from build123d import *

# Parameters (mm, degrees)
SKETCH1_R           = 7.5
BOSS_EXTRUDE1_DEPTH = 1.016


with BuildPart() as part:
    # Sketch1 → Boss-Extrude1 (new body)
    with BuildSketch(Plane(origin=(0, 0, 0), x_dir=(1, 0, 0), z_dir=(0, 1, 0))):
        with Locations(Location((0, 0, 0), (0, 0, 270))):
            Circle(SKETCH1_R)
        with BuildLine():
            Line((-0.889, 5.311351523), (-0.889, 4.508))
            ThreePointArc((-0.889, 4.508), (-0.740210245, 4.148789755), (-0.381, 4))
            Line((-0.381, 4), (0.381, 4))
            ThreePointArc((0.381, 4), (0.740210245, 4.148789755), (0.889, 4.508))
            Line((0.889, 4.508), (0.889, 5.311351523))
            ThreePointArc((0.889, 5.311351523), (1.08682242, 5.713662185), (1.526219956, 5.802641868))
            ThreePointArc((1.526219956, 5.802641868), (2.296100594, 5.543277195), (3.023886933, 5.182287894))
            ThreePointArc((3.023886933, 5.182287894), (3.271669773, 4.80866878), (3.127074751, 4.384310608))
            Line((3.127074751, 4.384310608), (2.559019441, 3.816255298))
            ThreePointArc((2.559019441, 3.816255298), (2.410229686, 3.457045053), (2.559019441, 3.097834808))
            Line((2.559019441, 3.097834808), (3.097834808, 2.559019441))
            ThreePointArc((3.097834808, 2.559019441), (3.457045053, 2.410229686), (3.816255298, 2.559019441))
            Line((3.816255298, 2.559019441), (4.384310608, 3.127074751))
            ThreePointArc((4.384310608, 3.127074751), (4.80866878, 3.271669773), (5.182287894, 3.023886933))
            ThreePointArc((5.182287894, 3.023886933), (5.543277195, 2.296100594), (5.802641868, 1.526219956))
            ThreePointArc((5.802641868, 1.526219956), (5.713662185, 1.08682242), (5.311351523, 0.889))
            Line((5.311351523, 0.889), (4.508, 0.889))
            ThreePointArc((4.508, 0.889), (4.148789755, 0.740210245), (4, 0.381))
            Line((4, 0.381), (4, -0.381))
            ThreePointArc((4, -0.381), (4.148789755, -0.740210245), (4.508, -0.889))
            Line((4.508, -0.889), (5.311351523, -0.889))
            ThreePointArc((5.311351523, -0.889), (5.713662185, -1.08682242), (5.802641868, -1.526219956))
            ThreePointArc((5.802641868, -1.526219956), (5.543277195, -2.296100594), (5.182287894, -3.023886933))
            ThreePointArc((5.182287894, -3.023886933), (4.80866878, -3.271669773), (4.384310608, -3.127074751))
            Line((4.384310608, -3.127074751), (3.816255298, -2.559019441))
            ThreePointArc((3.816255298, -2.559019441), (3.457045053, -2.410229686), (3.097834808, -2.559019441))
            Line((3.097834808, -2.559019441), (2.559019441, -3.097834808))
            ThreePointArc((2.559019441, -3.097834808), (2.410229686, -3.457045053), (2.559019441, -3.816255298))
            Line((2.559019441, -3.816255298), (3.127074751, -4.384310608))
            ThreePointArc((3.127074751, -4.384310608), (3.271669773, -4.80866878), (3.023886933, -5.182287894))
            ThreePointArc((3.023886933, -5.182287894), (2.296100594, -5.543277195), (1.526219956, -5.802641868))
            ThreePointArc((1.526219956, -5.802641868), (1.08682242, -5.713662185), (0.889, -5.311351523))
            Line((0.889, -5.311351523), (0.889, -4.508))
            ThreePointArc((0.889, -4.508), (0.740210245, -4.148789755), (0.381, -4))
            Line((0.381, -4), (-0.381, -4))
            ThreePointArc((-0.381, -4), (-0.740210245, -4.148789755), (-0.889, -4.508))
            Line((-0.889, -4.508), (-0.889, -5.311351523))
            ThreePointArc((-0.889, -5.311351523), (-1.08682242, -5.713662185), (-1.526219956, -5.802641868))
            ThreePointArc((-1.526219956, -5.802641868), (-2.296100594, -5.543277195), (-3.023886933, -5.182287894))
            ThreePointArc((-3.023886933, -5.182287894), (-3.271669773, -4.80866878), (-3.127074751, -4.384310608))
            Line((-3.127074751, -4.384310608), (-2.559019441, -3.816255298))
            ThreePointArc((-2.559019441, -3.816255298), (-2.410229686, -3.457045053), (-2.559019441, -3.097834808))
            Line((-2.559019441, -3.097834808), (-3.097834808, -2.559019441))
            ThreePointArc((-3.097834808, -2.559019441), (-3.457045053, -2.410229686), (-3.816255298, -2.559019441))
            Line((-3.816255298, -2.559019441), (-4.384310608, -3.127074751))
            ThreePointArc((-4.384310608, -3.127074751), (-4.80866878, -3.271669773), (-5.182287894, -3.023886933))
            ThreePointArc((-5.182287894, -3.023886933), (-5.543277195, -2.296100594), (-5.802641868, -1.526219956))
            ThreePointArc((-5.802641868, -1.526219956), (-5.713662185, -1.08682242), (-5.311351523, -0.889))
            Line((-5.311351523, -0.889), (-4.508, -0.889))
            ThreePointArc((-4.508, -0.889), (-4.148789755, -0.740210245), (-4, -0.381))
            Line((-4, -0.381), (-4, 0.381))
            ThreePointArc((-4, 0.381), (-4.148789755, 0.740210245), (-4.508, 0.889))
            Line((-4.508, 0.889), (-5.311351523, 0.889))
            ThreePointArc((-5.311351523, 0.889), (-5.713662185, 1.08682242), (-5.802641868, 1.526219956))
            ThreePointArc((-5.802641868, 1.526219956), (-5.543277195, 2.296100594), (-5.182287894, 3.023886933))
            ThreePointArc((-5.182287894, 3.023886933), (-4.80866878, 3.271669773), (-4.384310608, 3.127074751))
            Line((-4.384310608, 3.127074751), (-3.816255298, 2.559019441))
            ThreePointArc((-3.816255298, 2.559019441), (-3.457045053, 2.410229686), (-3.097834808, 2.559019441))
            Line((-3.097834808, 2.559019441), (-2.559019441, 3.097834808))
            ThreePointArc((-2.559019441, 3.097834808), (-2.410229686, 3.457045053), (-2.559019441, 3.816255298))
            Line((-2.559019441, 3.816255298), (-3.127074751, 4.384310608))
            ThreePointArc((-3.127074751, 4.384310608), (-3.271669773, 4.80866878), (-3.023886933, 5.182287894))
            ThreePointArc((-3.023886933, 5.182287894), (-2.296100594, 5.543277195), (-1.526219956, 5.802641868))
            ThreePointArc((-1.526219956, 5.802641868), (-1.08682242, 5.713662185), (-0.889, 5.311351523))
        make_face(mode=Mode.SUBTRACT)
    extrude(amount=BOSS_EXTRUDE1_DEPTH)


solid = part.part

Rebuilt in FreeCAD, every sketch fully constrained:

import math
import FreeCAD as App
import Part
import Sketcher

V = App.Vector

doc = App.newDocument("Part")
body = doc.addObject("PartDesign::Body", "Body")

sketch1 = body.newObject("Sketcher::SketchObject", "Sketch")
sketch1.AttachmentSupport = (doc.getObject("XZ_Plane"), [""])
sketch1.MapMode = "FlatFace"
sketch1.addGeometry(Part.Circle(V(0, 0, 0), V(0, 0, 1), 7.5), False)
sketch1.addGeometry(Part.ArcOfCircle(Part.Circle(V(-1.4, -5.3, 0), V(0, 0, 1), 0.5), math.radians(-105), math.radians(0)), False)
sketch1.addGeometry(Part.LineSegment(V(-0.9, -5.3, 0), V(-0.9, -4.5, 0)), False)
sketch1.addGeometry(Part.ArcOfCircle(Part.Circle(V(-0.4, -4.5, 0), V(0, 0, 1), 0.5), math.radians(90), math.radians(180)), False)
sketch1.addGeometry(Part.LineSegment(V(-0.4, -4, 0), V(0.4, -4, 0)), False)
sketch1.addGeometry(Part.ArcOfCircle(Part.Circle(V(0.4, -4.5, 0), V(0, 0, 1), 0.5), math.radians(0), math.radians(90)), False)
sketch1.addGeometry(Part.LineSegment(V(0.9, -4.5, 0), V(0.9, -5.3, 0)), False)
sketch1.addGeometry(Part.ArcOfCircle(Part.Circle(V(1.4, -5.3, 0), V(0, 0, 1), 0.5), math.radians(180), math.radians(285)), False)
sketch1.addGeometry(Part.ArcOfCircle(Part.Circle(V(0, 0, 0), V(0, 0, 1), 6), math.radians(-75.26), math.radians(-59.74)), False)
sketch1.addGeometry(Part.ArcOfCircle(Part.Circle(V(2.8, -4.7, 0), V(0, 0, 1), 0.5), math.radians(-60), math.radians(45)), False)
sketch1.addGeometry(Part.LineSegment(V(3.1, -4.4, 0), V(2.6, -3.8, 0)), False)
sketch1.addGeometry(Part.ArcOfCircle(Part.Circle(V(2.9, -3.5, 0), V(0, 0, 1), 0.5), math.radians(135), math.radians(225)), False)
sketch1.addGeometry(Part.LineSegment(V(2.6, -3.1, 0), V(3.1, -2.6, 0)), False)
sketch1.addGeometry(Part.ArcOfCircle(Part.Circle(V(3.5, -2.9, 0), V(0, 0, 1), 0.5), math.radians(45), math.radians(135)), False)
sketch1.addGeometry(Part.LineSegment(V(3.8, -2.6, 0), V(4.4, -3.1, 0)), False)
sketch1.addGeometry(Part.ArcOfCircle(Part.Circle(V(4.7, -2.8, 0), V(0, 0, 1), 0.5), math.radians(-135), math.radians(-30)), False)
sketch1.addGeometry(Part.ArcOfCircle(Part.Circle(V(0, 0, 0), V(0, 0, 1), 6), math.radians(-30.26), math.radians(-14.74)), False)
sketch1.addGeometry(Part.ArcOfCircle(Part.Circle(V(5.3, -1.4, 0), V(0, 0, 1), 0.5), math.radians(-15), math.radians(90)), False)
sketch1.addGeometry(Part.LineSegment(V(5.3, -0.9, 0), V(4.5, -0.9, 0)), False)
sketch1.addGeometry(Part.ArcOfCircle(Part.Circle(V(4.5, -0.4, 0), V(0, 0, 1), 0.5), math.radians(180), math.radians(270)), False)
sketch1.addGeometry(Part.LineSegment(V(4, -0.4, 0), V(4, 0.4, 0)), False)
sketch1.addGeometry(Part.ArcOfCircle(Part.Circle(V(4.5, 0.4, 0), V(0, 0, 1), 0.5), math.radians(90), math.radians(180)), False)
sketch1.addGeometry(Part.LineSegment(V(4.5, 0.9, 0), V(5.3, 0.9, 0)), False)
sketch1.addGeometry(Part.ArcOfCircle(Part.Circle(V(5.3, 1.4, 0), V(0, 0, 1), 0.5), math.radians(-90), math.radians(15)), False)
sketch1.addGeometry(Part.ArcOfCircle(Part.Circle(V(0, 0, 0), V(0, 0, 1), 6), math.radians(14.74), math.radians(30.26)), False)
sketch1.addGeometry(Part.ArcOfCircle(Part.Circle(V(4.7, 2.8, 0), V(0, 0, 1), 0.5), math.radians(30), math.radians(135)), False)
sketch1.addGeometry(Part.LineSegment(V(4.4, 3.1, 0), V(3.8, 2.6, 0)), False)
sketch1.addGeometry(Part.ArcOfCircle(Part.Circle(V(3.5, 2.9, 0), V(0, 0, 1), 0.5), math.radians(-135), math.radians(-45)), False)
sketch1.addGeometry(Part.LineSegment(V(3.1, 2.6, 0), V(2.6, 3.1, 0)), False)
sketch1.addGeometry(Part.ArcOfCircle(Part.Circle(V(2.9, 3.5, 0), V(0, 0, 1), 0.5), math.radians(135), math.radians(225)), False)
sketch1.addGeometry(Part.LineSegment(V(2.6, 3.8, 0), V(3.1, 4.4, 0)), False)
sketch1.addGeometry(Part.ArcOfCircle(Part.Circle(V(2.8, 4.7, 0), V(0, 0, 1), 0.5), math.radians(-45), math.radians(60)), False)
sketch1.addGeometry(Part.ArcOfCircle(Part.Circle(V(0, 0, 0), V(0, 0, 1), 6), math.radians(59.74), math.radians(75.26)), False)
sketch1.addGeometry(Part.ArcOfCircle(Part.Circle(V(1.4, 5.3, 0), V(0, 0, 1), 0.5), math.radians(75), math.radians(180)), False)
sketch1.addGeometry(Part.LineSegment(V(0.9, 5.3, 0), V(0.9, 4.5, 0)), False)
sketch1.addGeometry(Part.ArcOfCircle(Part.Circle(V(0.4, 4.5, 0), V(0, 0, 1), 0.5), math.radians(-90), math.radians(0)), False)
sketch1.addGeometry(Part.LineSegment(V(0.4, 4, 0), V(-0.4, 4, 0)), False)
sketch1.addGeometry(Part.ArcOfCircle(Part.Circle(V(-0.4, 4.5, 0), V(0, 0, 1), 0.5), math.radians(180), math.radians(270)), False)
sketch1.addGeometry(Part.LineSegment(V(-0.9, 4.5, 0), V(-0.9, 5.3, 0)), False)
sketch1.addGeometry(Part.ArcOfCircle(Part.Circle(V(-1.4, 5.3, 0), V(0, 0, 1), 0.5), math.radians(0), math.radians(105)), False)
sketch1.addGeometry(Part.ArcOfCircle(Part.Circle(V(0, 0, 0), V(0, 0, 1), 6), math.radians(104.74), math.radians(120.26)), False)
sketch1.addGeometry(Part.ArcOfCircle(Part.Circle(V(-2.8, 4.7, 0), V(0, 0, 1), 0.5), math.radians(120), math.radians(225)), False)
sketch1.addGeometry(Part.LineSegment(V(-3.1, 4.4, 0), V(-2.6, 3.8, 0)), False)
sketch1.addGeometry(Part.ArcOfCircle(Part.Circle(V(-2.9, 3.5, 0), V(0, 0, 1), 0.5), math.radians(-45), math.radians(45)), False)
sketch1.addGeometry(Part.LineSegment(V(-2.6, 3.1, 0), V(-3.1, 2.6, 0)), False)
sketch1.addGeometry(Part.ArcOfCircle(Part.Circle(V(-3.5, 2.9, 0), V(0, 0, 1), 0.5), math.radians(-135), math.radians(-45)), False)
sketch1.addGeometry(Part.LineSegment(V(-3.8, 2.6, 0), V(-4.4, 3.1, 0)), False)
sketch1.addGeometry(Part.ArcOfCircle(Part.Circle(V(-4.7, 2.8, 0), V(0, 0, 1), 0.5), math.radians(45), math.radians(150)), False)
sketch1.addGeometry(Part.ArcOfCircle(Part.Circle(V(0, 0, 0), V(0, 0, 1), 6), math.radians(149.74), math.radians(165.26)), False)
sketch1.addGeometry(Part.ArcOfCircle(Part.Circle(V(-5.3, 1.4, 0), V(0, 0, 1), 0.5), math.radians(165), math.radians(270)), False)
sketch1.addGeometry(Part.LineSegment(V(-5.3, 0.9, 0), V(-4.5, 0.9, 0)), False)
sketch1.addGeometry(Part.ArcOfCircle(Part.Circle(V(-4.5, 0.4, 0), V(0, 0, 1), 0.5), math.radians(0), math.radians(90)), False)
sketch1.addGeometry(Part.LineSegment(V(-4, 0.4, 0), V(-4, -0.4, 0)), False)
sketch1.addGeometry(Part.ArcOfCircle(Part.Circle(V(-4.5, -0.4, 0), V(0, 0, 1), 0.5), math.radians(-90), math.radians(0)), False)
sketch1.addGeometry(Part.LineSegment(V(-4.5, -0.9, 0), V(-5.3, -0.9, 0)), False)
sketch1.addGeometry(Part.ArcOfCircle(Part.Circle(V(-5.3, -1.4, 0), V(0, 0, 1), 0.5), math.radians(90), math.radians(195)), False)
sketch1.addGeometry(Part.ArcOfCircle(Part.Circle(V(0, 0, 0), V(0, 0, 1), 6), math.radians(-165.26), math.radians(-149.74)), False)
sketch1.addGeometry(Part.ArcOfCircle(Part.Circle(V(-4.7, -2.8, 0), V(0, 0, 1), 0.5), math.radians(-150), math.radians(-45)), False)
sketch1.addGeometry(Part.LineSegment(V(-4.4, -3.1, 0), V(-3.8, -2.6, 0)), False)
sketch1.addGeometry(Part.ArcOfCircle(Part.Circle(V(-3.5, -2.9, 0), V(0, 0, 1), 0.5), math.radians(45), math.radians(135)), False)
sketch1.addGeometry(Part.LineSegment(V(-3.1, -2.6, 0), V(-2.6, -3.1, 0)), False)
sketch1.addGeometry(Part.ArcOfCircle(Part.Circle(V(-2.9, -3.5, 0), V(0, 0, 1), 0.5), math.radians(-45), math.radians(45)), False)
sketch1.addGeometry(Part.LineSegment(V(-2.6, -3.8, 0), V(-3.1, -4.4, 0)), False)
sketch1.addGeometry(Part.ArcOfCircle(Part.Circle(V(-2.8, -4.7, 0), V(0, 0, 1), 0.5), math.radians(135), math.radians(240)), False)
sketch1.addGeometry(Part.ArcOfCircle(Part.Circle(V(0, 0, 0), V(0, 0, 1), 6), math.radians(-120.26), math.radians(-104.74)), False)
sketch1.addConstraint(Sketcher.Constraint("Tangent", 1, 2, 2, 1))
sketch1.addConstraint(Sketcher.Constraint("Tangent", 2, 2, 3, 2))
sketch1.addConstraint(Sketcher.Constraint("Tangent", 3, 1, 4, 1))
sketch1.addConstraint(Sketcher.Constraint("Tangent", 4, 2, 5, 2))
sketch1.addConstraint(Sketcher.Constraint("Tangent", 5, 1, 6, 1))
sketch1.addConstraint(Sketcher.Constraint("Tangent", 6, 2, 7, 1))
sketch1.addConstraint(Sketcher.Constraint("Tangent", 7, 2, 8, 1))
sketch1.addConstraint(Sketcher.Constraint("Tangent", 8, 2, 9, 1))
sketch1.addConstraint(Sketcher.Constraint("Tangent", 9, 2, 10, 1))
sketch1.addConstraint(Sketcher.Constraint("Tangent", 10, 2, 11, 2))
sketch1.addConstraint(Sketcher.Constraint("Tangent", 11, 1, 12, 1))
sketch1.addConstraint(Sketcher.Constraint("Tangent", 12, 2, 13, 2))
sketch1.addConstraint(Sketcher.Constraint("Tangent", 13, 1, 14, 1))
sketch1.addConstraint(Sketcher.Constraint("Tangent", 14, 2, 15, 1))
sketch1.addConstraint(Sketcher.Constraint("Tangent", 15, 2, 16, 1))
sketch1.addConstraint(Sketcher.Constraint("Tangent", 16, 2, 17, 1))
sketch1.addConstraint(Sketcher.Constraint("Tangent", 17, 2, 18, 1))
sketch1.addConstraint(Sketcher.Constraint("Tangent", 18, 2, 19, 2))
sketch1.addConstraint(Sketcher.Constraint("Tangent", 19, 1, 20, 1))
sketch1.addConstraint(Sketcher.Constraint("Tangent", 20, 2, 21, 2))
sketch1.addConstraint(Sketcher.Constraint("Tangent", 21, 1, 22, 1))
sketch1.addConstraint(Sketcher.Constraint("Tangent", 22, 2, 23, 1))
sketch1.addConstraint(Sketcher.Constraint("Tangent", 23, 2, 24, 1))
sketch1.addConstraint(Sketcher.Constraint("Tangent", 24, 2, 25, 1))
sketch1.addConstraint(Sketcher.Constraint("Tangent", 25, 2, 26, 1))
sketch1.addConstraint(Sketcher.Constraint("Tangent", 26, 2, 27, 2))
sketch1.addConstraint(Sketcher.Constraint("Tangent", 27, 1, 28, 1))
sketch1.addConstraint(Sketcher.Constraint("Tangent", 28, 2, 29, 2))
sketch1.addConstraint(Sketcher.Constraint("Tangent", 29, 1, 30, 1))
sketch1.addConstraint(Sketcher.Constraint("Tangent", 30, 2, 31, 1))
sketch1.addConstraint(Sketcher.Constraint("Tangent", 31, 2, 32, 1))
sketch1.addConstraint(Sketcher.Constraint("Tangent", 32, 2, 33, 1))
sketch1.addConstraint(Sketcher.Constraint("Tangent", 33, 2, 34, 1))
sketch1.addConstraint(Sketcher.Constraint("Tangent", 34, 2, 35, 2))
sketch1.addConstraint(Sketcher.Constraint("Tangent", 35, 1, 36, 1))
sketch1.addConstraint(Sketcher.Constraint("Tangent", 36, 2, 37, 2))
sketch1.addConstraint(Sketcher.Constraint("Tangent", 37, 1, 38, 1))
sketch1.addConstraint(Sketcher.Constraint("Tangent", 38, 2, 39, 1))
sketch1.addConstraint(Sketcher.Constraint("Tangent", 39, 2, 40, 1))
sketch1.addConstraint(Sketcher.Constraint("Tangent", 40, 2, 41, 1))
sketch1.addConstraint(Sketcher.Constraint("Tangent", 41, 2, 42, 1))
sketch1.addConstraint(Sketcher.Constraint("Tangent", 42, 2, 43, 2))
sketch1.addConstraint(Sketcher.Constraint("Tangent", 43, 1, 44, 1))
sketch1.addConstraint(Sketcher.Constraint("Tangent", 44, 2, 45, 2))
sketch1.addConstraint(Sketcher.Constraint("Tangent", 45, 1, 46, 1))
sketch1.addConstraint(Sketcher.Constraint("Tangent", 46, 2, 47, 1))
sketch1.addConstraint(Sketcher.Constraint("Tangent", 47, 2, 48, 1))
sketch1.addConstraint(Sketcher.Constraint("Tangent", 48, 2, 49, 1))
sketch1.addConstraint(Sketcher.Constraint("Tangent", 49, 2, 50, 1))
sketch1.addConstraint(Sketcher.Constraint("Tangent", 50, 2, 51, 2))
sketch1.addConstraint(Sketcher.Constraint("Tangent", 51, 1, 52, 1))
sketch1.addConstraint(Sketcher.Constraint("Tangent", 52, 2, 53, 2))
sketch1.addConstraint(Sketcher.Constraint("Tangent", 53, 1, 54, 1))
sketch1.addConstraint(Sketcher.Constraint("Tangent", 54, 2, 55, 1))
sketch1.addConstraint(Sketcher.Constraint("Tangent", 55, 2, 56, 1))
sketch1.addConstraint(Sketcher.Constraint("Tangent", 56, 2, 57, 1))
sketch1.addConstraint(Sketcher.Constraint("Tangent", 57, 2, 58, 1))
sketch1.addConstraint(Sketcher.Constraint("Tangent", 58, 2, 59, 2))
sketch1.addConstraint(Sketcher.Constraint("Tangent", 59, 1, 60, 1))
sketch1.addConstraint(Sketcher.Constraint("Tangent", 60, 2, 61, 2))
sketch1.addConstraint(Sketcher.Constraint("Tangent", 61, 1, 62, 1))
sketch1.addConstraint(Sketcher.Constraint("Tangent", 62, 2, 63, 1))
sketch1.addConstraint(Sketcher.Constraint("Tangent", 63, 2, 64, 1))
sketch1.addConstraint(Sketcher.Constraint("Tangent", 64, 2, 1, 1))
sketch1.addConstraint(Sketcher.Constraint("Vertical", 2))
sketch1.addConstraint(Sketcher.Constraint("Horizontal", 4))
sketch1.addConstraint(Sketcher.Constraint("Vertical", 6))
sketch1.addConstraint(Sketcher.Constraint("Horizontal", 18))
sketch1.addConstraint(Sketcher.Constraint("Vertical", 20))
sketch1.addConstraint(Sketcher.Constraint("Horizontal", 22))
sketch1.addConstraint(Sketcher.Constraint("Vertical", 34))
sketch1.addConstraint(Sketcher.Constraint("Horizontal", 36))
sketch1.addConstraint(Sketcher.Constraint("Vertical", 38))
sketch1.addConstraint(Sketcher.Constraint("Horizontal", 50))
sketch1.addConstraint(Sketcher.Constraint("Vertical", 52))
sketch1.addConstraint(Sketcher.Constraint("Horizontal", 54))
sketch1.addConstraint(Sketcher.Constraint("Coincident", 0, 3, -1, 1))
sketch1.addConstraint(Sketcher.Constraint("Coincident", 8, 3, -1, 1))
sketch1.addConstraint(Sketcher.Constraint("Coincident", 16, 3, -1, 1))
sketch1.addConstraint(Sketcher.Constraint("Coincident", 24, 3, -1, 1))
sketch1.addConstraint(Sketcher.Constraint("Coincident", 32, 3, -1, 1))
sketch1.addConstraint(Sketcher.Constraint("Coincident", 40, 3, -1, 1))
sketch1.addConstraint(Sketcher.Constraint("Coincident", 48, 3, -1, 1))
sketch1.addConstraint(Sketcher.Constraint("Coincident", 56, 3, -1, 1))
sketch1.addConstraint(Sketcher.Constraint("Coincident", 64, 3, -1, 1))
sketch1.addConstraint(Sketcher.Constraint("Equal", 1, 3))
sketch1.addConstraint(Sketcher.Constraint("Equal", 3, 5))
sketch1.addConstraint(Sketcher.Constraint("Equal", 5, 7))
sketch1.addConstraint(Sketcher.Constraint("Equal", 7, 9))
sketch1.addConstraint(Sketcher.Constraint("Equal", 9, 11))
sketch1.addConstraint(Sketcher.Constraint("Equal", 11, 13))
sketch1.addConstraint(Sketcher.Constraint("Equal", 13, 15))
sketch1.addConstraint(Sketcher.Constraint("Equal", 8, 16))
sketch1.addConstraint(Sketcher.Constraint("Equal", 15, 17))
sketch1.addConstraint(Sketcher.Constraint("Equal", 17, 19))
sketch1.addConstraint(Sketcher.Constraint("Equal", 19, 21))
sketch1.addConstraint(Sketcher.Constraint("Equal", 21, 23))
sketch1.addConstraint(Sketcher.Constraint("Equal", 16, 24))
sketch1.addConstraint(Sketcher.Constraint("Equal", 23, 25))
sketch1.addConstraint(Sketcher.Constraint("Equal", 25, 27))
sketch1.addConstraint(Sketcher.Constraint("Equal", 27, 29))
sketch1.addConstraint(Sketcher.Constraint("Equal", 29, 31))
sketch1.addConstraint(Sketcher.Constraint("Equal", 24, 32))
sketch1.addConstraint(Sketcher.Constraint("Equal", 31, 33))
sketch1.addConstraint(Sketcher.Constraint("Equal", 33, 35))
sketch1.addConstraint(Sketcher.Constraint("Equal", 35, 37))
sketch1.addConstraint(Sketcher.Constraint("Equal", 37, 39))
sketch1.addConstraint(Sketcher.Constraint("Equal", 32, 40))
sketch1.addConstraint(Sketcher.Constraint("Equal", 39, 41))
sketch1.addConstraint(Sketcher.Constraint("Equal", 41, 43))
sketch1.addConstraint(Sketcher.Constraint("Equal", 43, 45))
sketch1.addConstraint(Sketcher.Constraint("Equal", 45, 47))
sketch1.addConstraint(Sketcher.Constraint("Equal", 40, 48))
sketch1.addConstraint(Sketcher.Constraint("Equal", 47, 49))
sketch1.addConstraint(Sketcher.Constraint("Equal", 49, 51))
sketch1.addConstraint(Sketcher.Constraint("Equal", 51, 53))
sketch1.addConstraint(Sketcher.Constraint("Equal", 53, 55))
sketch1.addConstraint(Sketcher.Constraint("Equal", 48, 56))
sketch1.addConstraint(Sketcher.Constraint("Equal", 55, 57))
sketch1.addConstraint(Sketcher.Constraint("Equal", 57, 59))
sketch1.addConstraint(Sketcher.Constraint("Equal", 59, 61))
sketch1.addConstraint(Sketcher.Constraint("Equal", 61, 63))
sketch1.addConstraint(Sketcher.Constraint("Equal", 56, 64))
sketch1.addConstraint(Sketcher.Constraint("Symmetric", 3, 3, 35, 3, -1, 1))
sketch1.addConstraint(Sketcher.Constraint("Symmetric", 11, 3, 43, 3, -1, 1))
sketch1.addConstraint(Sketcher.Constraint("Symmetric", 13, 3, 45, 3, -1, 1))
sketch1.addConstraint(Sketcher.Constraint("Symmetric", 19, 3, 51, 3, -1, 1))
sketch1.addConstraint(Sketcher.Constraint("Symmetric", 27, 3, 59, 3, -1, 1))
sketch1.addConstraint(Sketcher.Constraint("Symmetric", 29, 3, 61, 3, -1, 1))
sketch1.addConstraint(Sketcher.Constraint("Symmetric", 29, 3, 43, 3, -2))
sketch1.addConstraint(Sketcher.Constraint("Symmetric", 27, 3, 45, 3, -2))
sketch1.addConstraint(Sketcher.Constraint("Perpendicular", 10, 12))
sketch1.addConstraint(Sketcher.Constraint("Perpendicular", 12, 14))
sketch1.addConstraint(Sketcher.Constraint("Perpendicular", 14, 26))
sketch1.addConstraint(Sketcher.Constraint("Perpendicular", 26, 28))
sketch1.addConstraint(Sketcher.Constraint("Perpendicular", 28, 30))
sketch1.addConstraint(Sketcher.Constraint("Perpendicular", 30, 42))
sketch1.addConstraint(Sketcher.Constraint("Perpendicular", 44, 46))
sketch1.addConstraint(Sketcher.Constraint("Perpendicular", 46, 58))
sketch1.addConstraint(Sketcher.Constraint("Perpendicular", 60, 62))
sketch1.addConstraint(Sketcher.Constraint("Horizontal", 1, 3, 7, 3))
sketch1.addConstraint(Sketcher.Constraint("Horizontal", 33, 3, 39, 3))
sketch1.addConstraint(Sketcher.Constraint("Horizontal", 23, 3, 49, 3))
sketch1.addConstraint(Sketcher.Constraint("Horizontal", 19, 3, 53, 3))
sketch1.addConstraint(Sketcher.Constraint("Equal", 54, 2))
sketch1.addConstraint(Sketcher.Constraint("Equal", 36, 20))
sketch1.addConstraint(Sketcher.Constraint("Equal", 10, 14))
sketch1.addConstraint(Sketcher.Constraint("Diameter", 0, 15.0))
sketch1.addConstraint(Sketcher.Constraint("Radius", 8, 6.0))
sketch1.addConstraint(Sketcher.Constraint("DistanceY", 3, 1, -1, 1, 4.0))
sketch1.addConstraint(Sketcher.Constraint("Radius", 1, 0.508))
sketch1.addConstraint(Sketcher.Constraint("DistanceX", 4, 1, 4, 2, 0.762))
sketch1.addConstraint(Sketcher.Constraint("Distance", 12, 0.762))
sketch1.addConstraint(Sketcher.Constraint("Distance", 10, 0.803352))
pad1 = body.newObject("PartDesign::Pad", "Pad")
pad1.Profile = sketch1
pad1.Length = 1.016
pad1.Reversed = True

doc.recompute()
